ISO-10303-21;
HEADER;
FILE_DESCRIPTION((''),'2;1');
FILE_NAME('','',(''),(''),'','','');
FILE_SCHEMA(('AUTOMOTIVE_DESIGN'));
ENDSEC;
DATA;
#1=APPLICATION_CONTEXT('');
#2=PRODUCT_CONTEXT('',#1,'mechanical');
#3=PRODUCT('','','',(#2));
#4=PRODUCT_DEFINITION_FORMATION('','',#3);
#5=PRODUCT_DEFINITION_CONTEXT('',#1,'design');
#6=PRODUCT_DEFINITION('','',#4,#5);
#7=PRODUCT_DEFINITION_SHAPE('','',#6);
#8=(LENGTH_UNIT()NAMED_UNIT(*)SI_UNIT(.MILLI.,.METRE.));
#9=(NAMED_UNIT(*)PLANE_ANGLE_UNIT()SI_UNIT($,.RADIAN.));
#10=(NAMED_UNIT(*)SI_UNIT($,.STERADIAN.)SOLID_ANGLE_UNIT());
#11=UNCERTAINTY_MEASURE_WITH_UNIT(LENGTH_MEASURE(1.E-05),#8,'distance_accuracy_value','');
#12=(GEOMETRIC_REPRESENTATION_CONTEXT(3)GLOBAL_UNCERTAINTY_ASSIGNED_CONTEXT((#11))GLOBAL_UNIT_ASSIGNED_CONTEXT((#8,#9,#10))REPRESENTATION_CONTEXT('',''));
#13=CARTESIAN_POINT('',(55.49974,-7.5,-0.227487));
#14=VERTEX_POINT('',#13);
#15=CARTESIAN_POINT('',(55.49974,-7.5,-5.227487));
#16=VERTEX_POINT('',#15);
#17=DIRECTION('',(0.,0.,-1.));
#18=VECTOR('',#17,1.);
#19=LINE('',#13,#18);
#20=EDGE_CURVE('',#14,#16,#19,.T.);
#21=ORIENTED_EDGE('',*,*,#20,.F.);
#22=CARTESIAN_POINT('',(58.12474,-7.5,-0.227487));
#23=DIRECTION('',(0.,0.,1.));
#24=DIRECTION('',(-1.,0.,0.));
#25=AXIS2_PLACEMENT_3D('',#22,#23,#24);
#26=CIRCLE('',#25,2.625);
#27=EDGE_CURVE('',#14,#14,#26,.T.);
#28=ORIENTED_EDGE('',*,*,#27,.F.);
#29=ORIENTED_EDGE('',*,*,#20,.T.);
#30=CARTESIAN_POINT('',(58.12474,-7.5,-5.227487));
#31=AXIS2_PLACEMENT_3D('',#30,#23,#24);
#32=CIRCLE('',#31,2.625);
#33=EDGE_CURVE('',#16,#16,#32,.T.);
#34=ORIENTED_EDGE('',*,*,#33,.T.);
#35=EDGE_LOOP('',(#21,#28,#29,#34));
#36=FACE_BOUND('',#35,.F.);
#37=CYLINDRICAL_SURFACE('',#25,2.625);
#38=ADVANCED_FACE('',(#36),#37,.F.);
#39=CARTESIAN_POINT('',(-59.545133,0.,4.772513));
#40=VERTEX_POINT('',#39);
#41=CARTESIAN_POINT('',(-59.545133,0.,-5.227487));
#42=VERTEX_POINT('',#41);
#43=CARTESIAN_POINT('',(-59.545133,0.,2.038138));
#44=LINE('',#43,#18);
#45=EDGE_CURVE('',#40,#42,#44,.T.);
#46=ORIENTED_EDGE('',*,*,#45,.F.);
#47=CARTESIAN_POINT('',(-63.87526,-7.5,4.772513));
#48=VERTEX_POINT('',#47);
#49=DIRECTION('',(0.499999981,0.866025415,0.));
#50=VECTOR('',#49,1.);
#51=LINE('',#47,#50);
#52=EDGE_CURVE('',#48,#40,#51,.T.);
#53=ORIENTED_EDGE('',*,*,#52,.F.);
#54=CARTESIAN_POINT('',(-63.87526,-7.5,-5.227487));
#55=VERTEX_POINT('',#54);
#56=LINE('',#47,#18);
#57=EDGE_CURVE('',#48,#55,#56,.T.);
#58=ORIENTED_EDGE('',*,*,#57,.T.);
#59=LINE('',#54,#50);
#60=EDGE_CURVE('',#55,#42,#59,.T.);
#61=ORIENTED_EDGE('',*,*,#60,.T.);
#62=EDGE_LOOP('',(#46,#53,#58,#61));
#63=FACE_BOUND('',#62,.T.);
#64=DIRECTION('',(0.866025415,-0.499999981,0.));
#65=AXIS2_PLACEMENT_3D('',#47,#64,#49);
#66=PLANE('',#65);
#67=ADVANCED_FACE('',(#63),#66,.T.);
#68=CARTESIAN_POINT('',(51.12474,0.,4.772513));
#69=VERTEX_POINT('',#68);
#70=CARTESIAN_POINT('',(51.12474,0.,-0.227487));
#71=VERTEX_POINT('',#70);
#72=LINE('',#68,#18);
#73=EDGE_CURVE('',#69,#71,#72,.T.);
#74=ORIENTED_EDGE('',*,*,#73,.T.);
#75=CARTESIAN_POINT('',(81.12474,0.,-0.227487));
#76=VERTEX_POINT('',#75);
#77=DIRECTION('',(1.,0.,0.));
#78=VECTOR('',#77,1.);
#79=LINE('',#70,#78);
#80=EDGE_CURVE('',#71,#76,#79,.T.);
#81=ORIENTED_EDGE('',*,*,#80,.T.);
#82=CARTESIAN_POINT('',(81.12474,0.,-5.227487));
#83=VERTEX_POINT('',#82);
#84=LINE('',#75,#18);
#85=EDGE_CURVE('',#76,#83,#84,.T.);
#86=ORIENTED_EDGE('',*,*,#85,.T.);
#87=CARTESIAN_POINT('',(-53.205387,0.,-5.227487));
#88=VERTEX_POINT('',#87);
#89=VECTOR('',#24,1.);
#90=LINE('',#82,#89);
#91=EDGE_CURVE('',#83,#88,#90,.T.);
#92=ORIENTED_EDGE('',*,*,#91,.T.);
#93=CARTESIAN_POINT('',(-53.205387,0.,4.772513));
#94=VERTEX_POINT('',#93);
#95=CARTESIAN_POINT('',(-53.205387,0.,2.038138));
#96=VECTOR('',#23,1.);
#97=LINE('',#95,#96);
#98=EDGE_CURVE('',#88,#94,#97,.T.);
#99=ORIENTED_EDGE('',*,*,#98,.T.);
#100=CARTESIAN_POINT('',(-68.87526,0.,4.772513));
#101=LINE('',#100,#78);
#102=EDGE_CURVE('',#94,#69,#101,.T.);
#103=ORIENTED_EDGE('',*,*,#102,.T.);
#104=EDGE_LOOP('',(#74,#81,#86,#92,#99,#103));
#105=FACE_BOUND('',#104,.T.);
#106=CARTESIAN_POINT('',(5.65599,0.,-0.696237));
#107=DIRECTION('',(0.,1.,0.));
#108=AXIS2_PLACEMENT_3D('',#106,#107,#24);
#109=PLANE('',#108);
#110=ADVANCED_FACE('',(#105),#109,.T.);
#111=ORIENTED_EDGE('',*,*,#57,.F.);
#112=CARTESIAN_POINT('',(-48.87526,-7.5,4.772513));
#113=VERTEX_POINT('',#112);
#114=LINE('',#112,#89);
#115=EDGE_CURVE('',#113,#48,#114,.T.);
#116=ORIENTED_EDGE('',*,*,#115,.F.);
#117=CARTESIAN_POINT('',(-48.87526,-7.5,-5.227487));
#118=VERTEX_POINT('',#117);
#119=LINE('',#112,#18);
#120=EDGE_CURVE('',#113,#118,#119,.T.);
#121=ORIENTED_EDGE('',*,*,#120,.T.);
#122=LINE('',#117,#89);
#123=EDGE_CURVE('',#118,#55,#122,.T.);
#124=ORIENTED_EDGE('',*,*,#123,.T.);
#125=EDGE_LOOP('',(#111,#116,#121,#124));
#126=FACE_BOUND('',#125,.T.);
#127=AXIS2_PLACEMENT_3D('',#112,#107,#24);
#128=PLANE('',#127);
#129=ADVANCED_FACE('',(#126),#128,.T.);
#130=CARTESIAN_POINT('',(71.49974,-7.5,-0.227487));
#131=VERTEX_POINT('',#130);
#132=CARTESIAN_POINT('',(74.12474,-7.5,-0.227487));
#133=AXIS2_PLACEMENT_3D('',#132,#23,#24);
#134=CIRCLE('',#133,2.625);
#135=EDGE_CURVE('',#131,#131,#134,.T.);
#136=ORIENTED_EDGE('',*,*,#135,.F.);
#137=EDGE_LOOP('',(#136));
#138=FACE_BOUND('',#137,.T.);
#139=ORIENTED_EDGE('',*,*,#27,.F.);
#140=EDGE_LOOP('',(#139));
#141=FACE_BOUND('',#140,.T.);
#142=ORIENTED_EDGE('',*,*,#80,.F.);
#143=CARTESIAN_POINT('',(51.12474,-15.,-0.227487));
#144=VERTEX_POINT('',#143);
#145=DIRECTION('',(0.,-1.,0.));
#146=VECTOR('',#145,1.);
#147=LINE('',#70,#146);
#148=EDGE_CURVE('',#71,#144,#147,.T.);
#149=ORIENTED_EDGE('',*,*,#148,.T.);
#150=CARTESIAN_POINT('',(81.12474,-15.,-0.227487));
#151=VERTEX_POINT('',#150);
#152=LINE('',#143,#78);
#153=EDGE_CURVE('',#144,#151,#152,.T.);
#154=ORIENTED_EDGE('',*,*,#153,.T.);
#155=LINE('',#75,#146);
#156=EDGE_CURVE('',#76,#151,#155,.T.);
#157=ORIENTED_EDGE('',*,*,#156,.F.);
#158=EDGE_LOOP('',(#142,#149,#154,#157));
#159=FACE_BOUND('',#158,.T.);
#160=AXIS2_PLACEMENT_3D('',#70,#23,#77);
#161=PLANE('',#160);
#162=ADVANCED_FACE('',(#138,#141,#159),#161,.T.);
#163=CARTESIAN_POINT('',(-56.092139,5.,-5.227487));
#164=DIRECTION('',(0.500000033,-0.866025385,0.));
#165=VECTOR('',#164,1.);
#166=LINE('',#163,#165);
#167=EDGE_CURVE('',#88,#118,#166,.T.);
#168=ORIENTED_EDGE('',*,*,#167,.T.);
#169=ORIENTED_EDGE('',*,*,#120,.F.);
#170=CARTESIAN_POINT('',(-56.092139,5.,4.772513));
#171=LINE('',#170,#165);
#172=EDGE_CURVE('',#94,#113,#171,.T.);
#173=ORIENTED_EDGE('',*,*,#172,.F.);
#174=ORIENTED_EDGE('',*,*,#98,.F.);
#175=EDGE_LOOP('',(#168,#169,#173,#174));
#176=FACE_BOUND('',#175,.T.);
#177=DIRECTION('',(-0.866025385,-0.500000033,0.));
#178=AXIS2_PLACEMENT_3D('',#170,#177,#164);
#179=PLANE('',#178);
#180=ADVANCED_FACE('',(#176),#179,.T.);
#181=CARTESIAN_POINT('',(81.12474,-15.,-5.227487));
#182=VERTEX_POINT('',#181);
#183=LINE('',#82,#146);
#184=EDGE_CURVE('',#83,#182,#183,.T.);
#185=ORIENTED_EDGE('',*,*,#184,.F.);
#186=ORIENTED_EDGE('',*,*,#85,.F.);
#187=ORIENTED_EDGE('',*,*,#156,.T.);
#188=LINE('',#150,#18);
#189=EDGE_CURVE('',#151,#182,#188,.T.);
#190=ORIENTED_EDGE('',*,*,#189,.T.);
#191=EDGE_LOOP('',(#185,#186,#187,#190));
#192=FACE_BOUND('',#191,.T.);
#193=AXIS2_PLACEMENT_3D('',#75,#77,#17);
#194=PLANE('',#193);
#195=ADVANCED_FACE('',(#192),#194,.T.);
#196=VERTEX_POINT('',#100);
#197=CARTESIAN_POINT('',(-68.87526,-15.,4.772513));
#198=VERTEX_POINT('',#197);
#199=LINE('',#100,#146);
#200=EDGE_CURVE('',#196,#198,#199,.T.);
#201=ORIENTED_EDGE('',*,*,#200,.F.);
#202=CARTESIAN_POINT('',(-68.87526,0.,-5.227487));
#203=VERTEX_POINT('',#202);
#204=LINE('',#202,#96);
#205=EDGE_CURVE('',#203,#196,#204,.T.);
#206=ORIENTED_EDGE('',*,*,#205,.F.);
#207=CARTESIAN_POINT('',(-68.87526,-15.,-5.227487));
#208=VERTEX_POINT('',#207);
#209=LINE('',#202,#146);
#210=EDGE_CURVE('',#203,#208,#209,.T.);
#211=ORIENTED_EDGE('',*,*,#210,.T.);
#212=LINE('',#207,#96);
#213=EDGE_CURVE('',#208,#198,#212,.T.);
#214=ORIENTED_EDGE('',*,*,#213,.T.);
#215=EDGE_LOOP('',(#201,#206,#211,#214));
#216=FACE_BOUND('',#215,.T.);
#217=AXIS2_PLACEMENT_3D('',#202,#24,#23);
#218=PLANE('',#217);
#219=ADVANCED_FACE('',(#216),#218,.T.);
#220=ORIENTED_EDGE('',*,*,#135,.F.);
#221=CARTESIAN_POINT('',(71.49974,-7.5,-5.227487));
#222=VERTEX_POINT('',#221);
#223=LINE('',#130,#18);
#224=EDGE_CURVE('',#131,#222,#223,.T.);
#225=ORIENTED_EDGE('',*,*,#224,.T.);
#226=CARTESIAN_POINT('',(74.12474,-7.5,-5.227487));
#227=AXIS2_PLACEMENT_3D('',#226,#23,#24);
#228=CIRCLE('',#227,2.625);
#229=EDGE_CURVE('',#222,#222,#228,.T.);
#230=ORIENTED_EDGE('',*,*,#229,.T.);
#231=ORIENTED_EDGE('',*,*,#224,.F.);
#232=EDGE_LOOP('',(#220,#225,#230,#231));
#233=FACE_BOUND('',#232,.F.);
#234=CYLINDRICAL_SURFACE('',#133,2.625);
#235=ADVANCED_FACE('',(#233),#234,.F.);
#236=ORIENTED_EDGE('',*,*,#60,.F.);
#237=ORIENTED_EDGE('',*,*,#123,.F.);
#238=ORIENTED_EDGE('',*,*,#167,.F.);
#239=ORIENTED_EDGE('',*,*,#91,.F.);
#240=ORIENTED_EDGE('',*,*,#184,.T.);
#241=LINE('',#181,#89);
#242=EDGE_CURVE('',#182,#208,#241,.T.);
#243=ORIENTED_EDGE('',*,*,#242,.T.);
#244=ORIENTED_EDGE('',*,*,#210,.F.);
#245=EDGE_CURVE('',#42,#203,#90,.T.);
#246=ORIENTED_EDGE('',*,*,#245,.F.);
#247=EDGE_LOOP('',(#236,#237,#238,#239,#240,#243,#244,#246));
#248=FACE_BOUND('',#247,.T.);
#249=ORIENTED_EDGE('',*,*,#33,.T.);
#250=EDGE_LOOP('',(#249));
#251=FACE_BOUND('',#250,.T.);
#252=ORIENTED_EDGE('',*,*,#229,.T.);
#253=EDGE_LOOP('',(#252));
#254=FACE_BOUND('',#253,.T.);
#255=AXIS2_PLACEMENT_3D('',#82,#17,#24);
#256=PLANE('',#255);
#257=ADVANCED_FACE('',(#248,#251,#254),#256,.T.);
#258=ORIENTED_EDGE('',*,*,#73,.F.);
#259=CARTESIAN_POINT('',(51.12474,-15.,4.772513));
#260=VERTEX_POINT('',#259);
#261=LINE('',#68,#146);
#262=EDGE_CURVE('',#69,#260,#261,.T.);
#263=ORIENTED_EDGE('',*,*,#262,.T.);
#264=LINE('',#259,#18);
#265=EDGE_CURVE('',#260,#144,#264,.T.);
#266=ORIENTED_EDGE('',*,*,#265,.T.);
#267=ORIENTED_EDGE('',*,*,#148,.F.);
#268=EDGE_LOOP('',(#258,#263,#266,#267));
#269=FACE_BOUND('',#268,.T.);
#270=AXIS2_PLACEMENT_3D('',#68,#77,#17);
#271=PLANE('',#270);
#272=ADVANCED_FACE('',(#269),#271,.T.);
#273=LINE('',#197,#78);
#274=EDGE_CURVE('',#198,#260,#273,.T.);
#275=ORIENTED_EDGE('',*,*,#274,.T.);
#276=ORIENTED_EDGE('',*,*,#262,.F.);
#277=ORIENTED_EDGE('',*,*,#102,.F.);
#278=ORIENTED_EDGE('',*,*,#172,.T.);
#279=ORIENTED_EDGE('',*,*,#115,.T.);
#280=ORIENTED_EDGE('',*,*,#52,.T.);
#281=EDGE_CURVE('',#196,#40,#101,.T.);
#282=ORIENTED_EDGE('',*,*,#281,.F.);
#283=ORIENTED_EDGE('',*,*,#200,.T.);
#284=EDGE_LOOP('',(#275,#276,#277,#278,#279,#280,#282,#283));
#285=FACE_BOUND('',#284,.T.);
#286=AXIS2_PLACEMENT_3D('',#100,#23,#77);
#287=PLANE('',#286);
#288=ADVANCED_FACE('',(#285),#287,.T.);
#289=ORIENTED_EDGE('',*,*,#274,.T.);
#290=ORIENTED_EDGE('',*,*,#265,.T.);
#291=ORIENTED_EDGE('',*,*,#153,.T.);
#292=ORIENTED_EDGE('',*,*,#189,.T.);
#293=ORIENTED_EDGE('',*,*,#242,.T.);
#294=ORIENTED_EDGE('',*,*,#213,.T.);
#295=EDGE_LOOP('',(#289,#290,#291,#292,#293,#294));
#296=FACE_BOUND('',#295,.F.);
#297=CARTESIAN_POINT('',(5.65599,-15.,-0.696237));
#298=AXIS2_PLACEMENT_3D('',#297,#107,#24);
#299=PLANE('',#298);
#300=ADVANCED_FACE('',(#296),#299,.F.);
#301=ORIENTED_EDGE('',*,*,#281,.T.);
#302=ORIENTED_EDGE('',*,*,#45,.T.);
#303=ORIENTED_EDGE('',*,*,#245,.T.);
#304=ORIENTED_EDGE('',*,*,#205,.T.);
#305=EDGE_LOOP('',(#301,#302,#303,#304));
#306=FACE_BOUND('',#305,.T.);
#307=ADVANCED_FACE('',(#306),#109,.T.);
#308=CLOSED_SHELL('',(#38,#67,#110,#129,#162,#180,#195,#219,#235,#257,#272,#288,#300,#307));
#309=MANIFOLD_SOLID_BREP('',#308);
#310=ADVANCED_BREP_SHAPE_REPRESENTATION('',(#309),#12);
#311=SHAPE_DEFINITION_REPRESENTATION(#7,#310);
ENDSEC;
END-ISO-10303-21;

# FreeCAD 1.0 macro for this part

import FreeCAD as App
import Part
import Sketcher
from FreeCAD import Vector
Q = App.Units.Quantity


def add_polygon(sketch, points):
    """Adds a closed chain of lines whose ends are joined by coincident constraints."""
    first, n = sketch.GeometryCount, len(points)
    for a, b in zip(points, points[1:] + points[:1]):
        sketch.addGeometry(Part.LineSegment(App.Vector(*a, 0), App.Vector(*b, 0)), False)
    for i in range(n):
        sketch.addConstraint(Sketcher.Constraint("Coincident", first + i, 2, first + (i + 1) % n, 1))

doc = App.newDocument("Part")
body = doc.addObject("PartDesign::Body", "Body")

sketch1 = body.newObject("Sketcher::SketchObject", "Sketch")
sketch1.AttachmentSupport = (doc.getObject("XZ_Plane"), [""])
sketch1.MapMode = "FlatFace"
add_polygon(sketch1, [(-69, 5), (-69, -5), (81, -5), (81, 0), (51, 0), (51, 5)])
sketch1.addConstraint(Sketcher.Constraint("Vertical", 0))
sketch1.addConstraint(Sketcher.Constraint("Horizontal", 1))
sketch1.addConstraint(Sketcher.Constraint("Vertical", 2))
sketch1.addConstraint(Sketcher.Constraint("Horizontal", 3))
sketch1.addConstraint(Sketcher.Constraint("Vertical", 4))
sketch1.addConstraint(Sketcher.Constraint("Horizontal", 5))
sketch1.addConstraint(Sketcher.Constraint("Equal", 2, 4))
sketch1.addConstraint(Sketcher.Constraint("DistanceX", 1, 1, 1, 2, 150.0))
sketch1.addConstraint(Sketcher.Constraint("DistanceX", 3, 2, 3, 1, 30.0))
sketch1.addConstraint(Sketcher.Constraint("DistanceY", 0, 2, 0, 1, 10.0))
sketch1.addConstraint(Sketcher.Constraint("DistanceX", 0, 2, -1, 1, 68.87526))
sketch1.addConstraint(Sketcher.Constraint("DistanceY", 0, 2, -1, 1, 5.227487))
pad1 = body.newObject("PartDesign::Pad", "Pad")
pad1.Profile = sketch1
pad1.Length = 15

sketch2 = body.newObject("Sketcher::SketchObject", "Sketch001")
sketch2.AttachmentSupport = (doc.getObject("XY_Plane"), [""])
sketch2.MapMode = "FlatFace"
sketch2.AttachmentOffset = App.Placement(Vector(0, 0, -0.227487), App.Rotation())
sketch2.addGeometry(Part.Circle(Vector(74.1, -7.5, 0), Vector(0, 0, 1), 2.6), False)
sketch2.addGeometry(Part.Circle(Vector(58.1, -7.5, 0), Vector(0, 0, 1), 2.6), False)
sketch2.addConstraint(Sketcher.Constraint("Equal", 0, 1))
sketch2.addConstraint(Sketcher.Constraint("Horizontal", 0, 3, 1, 3))
sketch2.addConstraint(Sketcher.Constraint("Diameter", 0, 5.25))
sketch2.addConstraint(Sketcher.Constraint("DistanceX", 1, 3, 0, 3, 16.0))
sketch2.addConstraint(Sketcher.Constraint("DistanceY", 0, 3, -1, 1, 7.5))
sketch2.addConstraint(Sketcher.Constraint("DistanceX", -1, 1, 0, 3, 74.12474))
pocket1 = body.newObject("PartDesign::Pocket", "Pocket")
pocket1.Profile = sketch2
pocket1.Length = 5

sketch3 = body.newObject("Sketcher::SketchObject", "Sketch002")
sketch3.AttachmentSupport = (doc.getObject("XY_Plane"), [""])
sketch3.MapMode = "FlatFace"
sketch3.AttachmentOffset = App.Placement(Vector(0, 0, 4.772513), App.Rotation())
add_polygon(sketch3, [(-48.9, -7.5), (-56.1, 5), (-56.7, 5), (-63.9, -7.5)])
sketch3.addConstraint(Sketcher.Constraint("Horizontal", 1))
sketch3.addConstraint(Sketcher.Constraint("Horizontal", 3))
sketch3.addConstraint(Sketcher.Constraint("Equal", 0, 2))
sketch3.addConstraint(Sketcher.Constraint("DistanceX", 3, 1, 3, 2, 15.0))
sketch3.addConstraint(Sketcher.Constraint("Angle", 0, Q("120.000002 deg")))
sketch3.addConstraint(Sketcher.Constraint("DistanceY", -1, 1, 0, 2, 5.0))
sketch3.addConstraint(Sketcher.Constraint("DistanceY", 2, 2, -1, 1, 7.5))
sketch3.addConstraint(Sketcher.Constraint("DistanceX", 0, 2, -1, 1, 56.092139))
pocket2 = body.newObject("PartDesign::Pocket", "Pocket001")
pocket2.Profile = sketch3
pocket2.Length = 10

doc.recompute()
